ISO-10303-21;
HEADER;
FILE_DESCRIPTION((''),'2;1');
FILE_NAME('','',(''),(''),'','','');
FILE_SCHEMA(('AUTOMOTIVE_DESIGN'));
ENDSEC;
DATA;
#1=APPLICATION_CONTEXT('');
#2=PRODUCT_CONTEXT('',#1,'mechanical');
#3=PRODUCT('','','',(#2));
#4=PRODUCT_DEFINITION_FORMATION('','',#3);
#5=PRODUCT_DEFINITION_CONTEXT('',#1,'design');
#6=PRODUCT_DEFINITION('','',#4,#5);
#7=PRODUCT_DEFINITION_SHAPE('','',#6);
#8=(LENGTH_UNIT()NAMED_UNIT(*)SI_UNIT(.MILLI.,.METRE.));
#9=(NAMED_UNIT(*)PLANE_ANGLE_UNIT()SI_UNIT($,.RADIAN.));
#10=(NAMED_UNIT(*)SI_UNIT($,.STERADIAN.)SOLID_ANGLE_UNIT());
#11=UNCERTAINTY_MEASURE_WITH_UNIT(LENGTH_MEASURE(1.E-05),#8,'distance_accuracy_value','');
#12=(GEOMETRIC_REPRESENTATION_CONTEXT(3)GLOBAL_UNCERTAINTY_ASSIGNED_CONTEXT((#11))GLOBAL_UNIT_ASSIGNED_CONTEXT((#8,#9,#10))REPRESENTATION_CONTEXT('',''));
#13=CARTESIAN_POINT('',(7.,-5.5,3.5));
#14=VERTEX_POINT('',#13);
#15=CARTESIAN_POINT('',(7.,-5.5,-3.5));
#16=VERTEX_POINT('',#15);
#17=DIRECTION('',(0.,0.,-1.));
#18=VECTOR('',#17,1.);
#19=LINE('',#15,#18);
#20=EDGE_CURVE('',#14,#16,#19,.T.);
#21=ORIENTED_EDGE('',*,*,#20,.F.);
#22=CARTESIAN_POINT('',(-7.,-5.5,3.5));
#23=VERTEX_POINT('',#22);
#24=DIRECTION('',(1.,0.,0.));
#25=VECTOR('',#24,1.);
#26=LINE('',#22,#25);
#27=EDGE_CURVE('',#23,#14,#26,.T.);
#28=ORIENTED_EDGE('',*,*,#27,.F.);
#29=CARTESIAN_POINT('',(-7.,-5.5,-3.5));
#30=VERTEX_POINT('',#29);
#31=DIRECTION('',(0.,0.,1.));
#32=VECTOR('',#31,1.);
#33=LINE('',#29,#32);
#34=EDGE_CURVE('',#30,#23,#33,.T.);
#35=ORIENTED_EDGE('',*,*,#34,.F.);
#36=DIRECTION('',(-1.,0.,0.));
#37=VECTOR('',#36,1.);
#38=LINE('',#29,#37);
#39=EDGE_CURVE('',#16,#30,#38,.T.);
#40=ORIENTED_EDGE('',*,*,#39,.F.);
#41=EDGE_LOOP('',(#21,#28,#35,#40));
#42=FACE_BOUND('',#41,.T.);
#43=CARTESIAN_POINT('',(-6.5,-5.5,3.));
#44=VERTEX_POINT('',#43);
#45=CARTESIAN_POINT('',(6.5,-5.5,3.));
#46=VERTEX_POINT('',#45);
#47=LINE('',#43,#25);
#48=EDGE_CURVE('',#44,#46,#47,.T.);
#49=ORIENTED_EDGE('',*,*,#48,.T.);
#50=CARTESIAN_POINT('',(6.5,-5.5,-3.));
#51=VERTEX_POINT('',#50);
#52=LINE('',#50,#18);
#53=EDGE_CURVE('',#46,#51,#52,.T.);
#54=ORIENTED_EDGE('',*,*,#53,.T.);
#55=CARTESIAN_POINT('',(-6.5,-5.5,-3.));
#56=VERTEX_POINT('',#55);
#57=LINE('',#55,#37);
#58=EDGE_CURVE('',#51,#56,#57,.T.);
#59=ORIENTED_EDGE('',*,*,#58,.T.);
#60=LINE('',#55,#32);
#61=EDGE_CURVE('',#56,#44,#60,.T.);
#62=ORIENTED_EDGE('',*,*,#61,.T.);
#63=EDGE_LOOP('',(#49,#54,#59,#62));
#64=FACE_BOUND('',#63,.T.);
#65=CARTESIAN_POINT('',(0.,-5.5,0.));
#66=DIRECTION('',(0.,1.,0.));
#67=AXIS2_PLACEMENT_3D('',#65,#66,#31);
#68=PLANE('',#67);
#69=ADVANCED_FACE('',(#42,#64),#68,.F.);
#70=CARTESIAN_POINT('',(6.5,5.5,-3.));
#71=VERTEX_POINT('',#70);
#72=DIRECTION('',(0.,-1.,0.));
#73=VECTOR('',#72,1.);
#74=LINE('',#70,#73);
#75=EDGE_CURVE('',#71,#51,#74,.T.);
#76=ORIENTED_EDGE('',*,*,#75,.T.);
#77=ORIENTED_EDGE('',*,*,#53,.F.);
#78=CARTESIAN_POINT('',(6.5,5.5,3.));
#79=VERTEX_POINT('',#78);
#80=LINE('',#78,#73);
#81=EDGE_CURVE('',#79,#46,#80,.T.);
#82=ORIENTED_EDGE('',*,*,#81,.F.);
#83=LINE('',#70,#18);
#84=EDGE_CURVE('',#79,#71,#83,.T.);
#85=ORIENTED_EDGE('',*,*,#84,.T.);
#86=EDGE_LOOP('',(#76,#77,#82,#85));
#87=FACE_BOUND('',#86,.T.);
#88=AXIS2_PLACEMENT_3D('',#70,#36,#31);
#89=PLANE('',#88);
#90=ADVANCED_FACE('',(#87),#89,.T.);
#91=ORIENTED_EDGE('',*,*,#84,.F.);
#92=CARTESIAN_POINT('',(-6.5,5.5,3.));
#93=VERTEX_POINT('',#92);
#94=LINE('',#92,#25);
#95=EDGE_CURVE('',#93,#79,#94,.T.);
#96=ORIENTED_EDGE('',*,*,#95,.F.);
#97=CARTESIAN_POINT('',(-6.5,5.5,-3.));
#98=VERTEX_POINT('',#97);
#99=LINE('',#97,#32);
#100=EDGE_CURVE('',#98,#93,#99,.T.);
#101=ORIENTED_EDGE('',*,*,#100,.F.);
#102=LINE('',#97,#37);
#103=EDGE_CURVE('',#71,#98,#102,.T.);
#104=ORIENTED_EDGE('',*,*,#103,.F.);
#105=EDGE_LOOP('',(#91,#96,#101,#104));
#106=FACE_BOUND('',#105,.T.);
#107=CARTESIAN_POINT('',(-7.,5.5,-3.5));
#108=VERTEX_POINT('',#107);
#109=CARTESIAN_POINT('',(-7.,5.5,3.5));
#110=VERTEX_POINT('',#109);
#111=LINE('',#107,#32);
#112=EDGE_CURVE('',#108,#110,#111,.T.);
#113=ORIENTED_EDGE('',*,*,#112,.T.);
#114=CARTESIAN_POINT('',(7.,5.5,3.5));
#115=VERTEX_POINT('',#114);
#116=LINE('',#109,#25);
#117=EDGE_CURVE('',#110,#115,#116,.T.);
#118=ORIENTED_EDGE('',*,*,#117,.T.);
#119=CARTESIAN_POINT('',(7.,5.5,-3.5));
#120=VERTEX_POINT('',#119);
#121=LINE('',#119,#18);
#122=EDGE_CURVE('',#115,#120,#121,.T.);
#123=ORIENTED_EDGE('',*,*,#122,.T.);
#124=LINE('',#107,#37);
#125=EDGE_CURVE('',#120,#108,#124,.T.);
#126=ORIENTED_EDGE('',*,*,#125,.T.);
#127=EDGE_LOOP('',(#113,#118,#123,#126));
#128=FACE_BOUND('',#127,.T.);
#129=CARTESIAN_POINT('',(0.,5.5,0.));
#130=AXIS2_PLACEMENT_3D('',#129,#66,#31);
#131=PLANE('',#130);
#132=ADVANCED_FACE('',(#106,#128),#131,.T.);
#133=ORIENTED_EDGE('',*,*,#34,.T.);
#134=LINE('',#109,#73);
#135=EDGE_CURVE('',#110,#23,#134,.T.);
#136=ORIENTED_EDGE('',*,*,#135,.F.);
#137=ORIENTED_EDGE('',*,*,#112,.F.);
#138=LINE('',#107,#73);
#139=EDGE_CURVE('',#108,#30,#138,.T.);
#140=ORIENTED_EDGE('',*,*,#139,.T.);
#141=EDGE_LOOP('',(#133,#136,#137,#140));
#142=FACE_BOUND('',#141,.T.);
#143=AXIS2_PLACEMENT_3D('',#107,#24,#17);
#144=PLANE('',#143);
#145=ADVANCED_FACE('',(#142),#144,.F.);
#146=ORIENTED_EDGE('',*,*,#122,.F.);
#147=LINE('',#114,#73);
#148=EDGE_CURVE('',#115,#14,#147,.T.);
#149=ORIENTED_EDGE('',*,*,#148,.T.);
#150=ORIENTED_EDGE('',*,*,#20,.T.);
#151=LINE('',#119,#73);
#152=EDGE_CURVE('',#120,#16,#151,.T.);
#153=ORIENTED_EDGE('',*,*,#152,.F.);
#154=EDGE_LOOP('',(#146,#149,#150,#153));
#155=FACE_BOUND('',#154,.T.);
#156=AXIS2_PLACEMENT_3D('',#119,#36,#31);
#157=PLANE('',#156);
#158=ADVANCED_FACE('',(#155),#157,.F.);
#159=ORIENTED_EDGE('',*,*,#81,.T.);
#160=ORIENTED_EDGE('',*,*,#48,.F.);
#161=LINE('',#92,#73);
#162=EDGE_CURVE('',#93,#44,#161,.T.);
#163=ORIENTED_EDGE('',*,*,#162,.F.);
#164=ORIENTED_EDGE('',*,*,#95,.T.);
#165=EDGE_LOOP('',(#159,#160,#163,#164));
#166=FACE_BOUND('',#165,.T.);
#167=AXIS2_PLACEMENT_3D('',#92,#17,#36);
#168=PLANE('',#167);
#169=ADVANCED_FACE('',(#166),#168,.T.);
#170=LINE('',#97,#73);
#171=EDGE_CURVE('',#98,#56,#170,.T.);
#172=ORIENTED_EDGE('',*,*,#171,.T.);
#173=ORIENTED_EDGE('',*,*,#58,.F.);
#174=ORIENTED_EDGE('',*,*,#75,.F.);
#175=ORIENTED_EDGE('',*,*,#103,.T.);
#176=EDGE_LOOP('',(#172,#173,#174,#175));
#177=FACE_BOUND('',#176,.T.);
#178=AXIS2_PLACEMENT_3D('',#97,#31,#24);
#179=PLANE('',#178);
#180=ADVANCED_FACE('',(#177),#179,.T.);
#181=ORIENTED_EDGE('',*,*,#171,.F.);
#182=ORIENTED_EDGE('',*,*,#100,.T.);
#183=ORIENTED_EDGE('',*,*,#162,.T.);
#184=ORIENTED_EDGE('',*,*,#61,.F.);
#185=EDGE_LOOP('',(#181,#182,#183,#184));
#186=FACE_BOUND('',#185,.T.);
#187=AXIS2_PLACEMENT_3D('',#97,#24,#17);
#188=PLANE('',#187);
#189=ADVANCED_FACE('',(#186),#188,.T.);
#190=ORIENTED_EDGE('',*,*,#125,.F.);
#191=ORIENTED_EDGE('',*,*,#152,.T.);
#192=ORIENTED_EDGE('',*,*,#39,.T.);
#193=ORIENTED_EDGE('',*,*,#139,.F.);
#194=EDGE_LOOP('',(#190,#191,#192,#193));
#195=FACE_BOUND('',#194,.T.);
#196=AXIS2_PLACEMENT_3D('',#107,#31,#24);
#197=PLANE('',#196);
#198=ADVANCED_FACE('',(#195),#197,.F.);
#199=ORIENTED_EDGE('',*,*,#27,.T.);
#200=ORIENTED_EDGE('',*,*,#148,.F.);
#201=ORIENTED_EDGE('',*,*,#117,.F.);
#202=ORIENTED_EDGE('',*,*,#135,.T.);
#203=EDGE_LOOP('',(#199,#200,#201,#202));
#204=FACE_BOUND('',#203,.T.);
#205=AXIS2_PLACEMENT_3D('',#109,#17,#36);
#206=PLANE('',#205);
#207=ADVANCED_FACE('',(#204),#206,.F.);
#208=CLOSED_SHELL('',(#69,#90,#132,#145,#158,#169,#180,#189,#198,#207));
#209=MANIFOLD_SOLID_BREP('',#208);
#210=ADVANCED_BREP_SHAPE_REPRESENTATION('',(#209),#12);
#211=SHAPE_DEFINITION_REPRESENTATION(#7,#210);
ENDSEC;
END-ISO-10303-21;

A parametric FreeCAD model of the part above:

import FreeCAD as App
import Part
import Sketcher
Q = App.Units.Quantity


def add_polygon(sketch, points):
    """Adds a closed chain of lines whose ends are joined by coincident constraints."""
    first, n = sketch.GeometryCount, len(points)
    for a, b in zip(points, points[1:] + points[:1]):
        sketch.addGeometry(Part.LineSegment(App.Vector(*a, 0), App.Vector(*b, 0)), False)
    for i in range(n):
        sketch.addConstraint(Sketcher.Constraint("Coincident", first + i, 2, first + (i + 1) % n, 1))

doc = App.newDocument("Part")
params = doc.addObject("Spreadsheet::Sheet", "Params")
for row, (alias, value) in enumerate([
    ("sketch1_width", "14 mm"),
    ("sketch1_width2", "13 mm"),
    ("sketch1_height", "7 mm"),
    ("sketch1_height2", "6 mm"),
    ("pad1_length", "11 mm"),
], start=1):
    params.set(f"A{row}", alias)
    params.set(f"B{row}", "=" + value)
    params.setAlias(f"B{row}", alias)

body = doc.addObject("PartDesign::Body", "Body")

sketch1 = body.newObject("Sketcher::SketchObject", "Sketch")
sketch1.AttachmentSupport = (doc.getObject("XZ_Plane"), [""])
sketch1.MapMode = "FlatFace"
add_polygon(sketch1, [(-7, -4), (-7, 4), (7, 4), (7, -4)])
add_polygon(sketch1, [(6, 3), (-6, 3), (-6, -3), (6, -3)])
sketch1.addConstraint([
    Sketcher.Constraint("Vertical", 0),
    Sketcher.Constraint("Horizontal", 1),
    Sketcher.Constraint("Vertical", 2),
    Sketcher.Constraint("Horizontal", 3),
    Sketcher.Constraint("Horizontal", 4),
    Sketcher.Constraint("Vertical", 5),
    Sketcher.Constraint("Horizontal", 6),
    Sketcher.Constraint("Vertical", 7),
    Sketcher.Constraint("Symmetric", 0, 2, 2, 2, -1, 1),
    Sketcher.Constraint("Symmetric", 4, 2, 6, 2, -1, 1),
    Sketcher.Constraint("DistanceX", 1, 1, 1, 2, Q("14 mm")),
    Sketcher.Constraint("DistanceX", 4, 2, 4, 1, Q("13 mm")),
    Sketcher.Constraint("DistanceY", 0, 1, 0, 2, Q("7 mm")),
    Sketcher.Constraint("DistanceY", 5, 2, 5, 1, Q("6 mm")),
])
sketch1.setExpression("Constraints[18]", "Params.sketch1_width")
sketch1.setExpression("Constraints[19]", "Params.sketch1_width2")
sketch1.setExpression("Constraints[20]", "Params.sketch1_height")
sketch1.setExpression("Constraints[21]", "Params.sketch1_height2")
pad1 = body.newObject("PartDesign::Pad", "Pad")
pad1.Profile = sketch1
pad1.setExpression("Length", "Params.pad1_length")
pad1.Midplane = True

doc.recompute()
